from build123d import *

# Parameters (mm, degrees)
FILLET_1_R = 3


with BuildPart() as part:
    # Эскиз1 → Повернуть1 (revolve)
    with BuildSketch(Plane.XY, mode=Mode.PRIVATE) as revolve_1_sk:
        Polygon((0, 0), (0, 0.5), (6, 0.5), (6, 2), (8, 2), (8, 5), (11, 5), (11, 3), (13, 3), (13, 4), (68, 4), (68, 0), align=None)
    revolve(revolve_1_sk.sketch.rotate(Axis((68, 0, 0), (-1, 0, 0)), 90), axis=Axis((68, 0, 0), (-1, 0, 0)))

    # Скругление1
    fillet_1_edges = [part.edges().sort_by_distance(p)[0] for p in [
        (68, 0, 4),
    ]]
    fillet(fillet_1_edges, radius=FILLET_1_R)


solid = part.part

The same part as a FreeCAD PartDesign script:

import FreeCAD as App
import Part
import Sketcher

V = App.Vector
Q = App.Units.Quantity


def edges_at(feature, points):
    """Names of the edges that pass closest to the given points."""
    edges = feature.Shape.Edges
    near = lambda p: min(range(len(edges)), key=lambda i: edges[i].distToShape(Part.Vertex(*p))[0])
    return sorted({f"Edge{near(p) + 1}" for p in points})

doc = App.newDocument("Part")
body = doc.addObject("PartDesign::Body", "Body")

# Sketch on XY plane
sketch1 = body.newObject("Sketcher::SketchObject", "Sketch")
sketch1.AttachmentSupport = (doc.getObject("XY_Plane"), [""])
sketch1.MapMode = "FlatFace"
sketch1.addGeometry(Part.LineSegment(V(0, 0.5, 0), V(0, 0, 0)), False)
sketch1.addGeometry(Part.LineSegment(V(0, 0, 0), V(68, 0, 0)), False)
sketch1.addGeometry(Part.LineSegment(V(68, 0, 0), V(68, 4, 0)), False)
sketch1.addGeometry(Part.LineSegment(V(68, 4, 0), V(13, 4, 0)), False)
sketch1.addGeometry(Part.LineSegment(V(13, 4, 0), V(13, 3, 0)), False)
sketch1.addGeometry(Part.LineSegment(V(13, 3, 0), V(11, 3, 0)), False)
sketch1.addGeometry(Part.LineSegment(V(11, 3, 0), V(11, 5, 0)), False)
sketch1.addGeometry(Part.LineSegment(V(11, 5, 0), V(8, 5, 0)), False)
sketch1.addGeometry(Part.LineSegment(V(8, 5, 0), V(8, 2, 0)), False)
sketch1.addGeometry(Part.LineSegment(V(8, 2, 0), V(6, 2, 0)), False)
sketch1.addGeometry(Part.LineSegment(V(6, 2, 0), V(6, 0.5, 0)), False)
sketch1.addGeometry(Part.LineSegment(V(6, 0.5, 0), V(0, 0.5, 0)), False)
sketch1.addConstraint(Sketcher.Constraint("Coincident", 0, 2, 1, 1))
sketch1.addConstraint(Sketcher.Constraint("Coincident", 1, 2, 2, 1))
sketch1.addConstraint(Sketcher.Constraint("Coincident", 2, 2, 3, 1))
sketch1.addConstraint(Sketcher.Constraint("Coincident", 3, 2, 4, 1))
sketch1.addConstraint(Sketcher.Constraint("Coincident", 4, 2, 5, 1))
sketch1.addConstraint(Sketcher.Constraint("Coincident", 5, 2, 6, 1))
sketch1.addConstraint(Sketcher.Constraint("Coincident", 6, 2, 7, 1))
sketch1.addConstraint(Sketcher.Constraint("Coincident", 7, 2, 8, 1))
sketch1.addConstraint(Sketcher.Constraint("Coincident", 8, 2, 9, 1))
sketch1.addConstraint(Sketcher.Constraint("Coincident", 9, 2, 10, 1))
sketch1.addConstraint(Sketcher.Constraint("Coincident", 10, 2, 11, 1))
sketch1.addConstraint(Sketcher.Constraint("Coincident", 11, 2, 0, 1))
sketch1.addConstraint(Sketcher.Constraint("Vertical", 0))
sketch1.addConstraint(Sketcher.Constraint("Horizontal", 1))
sketch1.addConstraint(Sketcher.Constraint("Vertical", 2))
sketch1.addConstraint(Sketcher.Constraint("Horizontal", 3))
sketch1.addConstraint(Sketcher.Constraint("Vertical", 4))
sketch1.addConstraint(Sketcher.Constraint("Horizontal", 5))
sketch1.addConstraint(Sketcher.Constraint("Vertical", 6))
sketch1.addConstraint(Sketcher.Constraint("Horizontal", 7))
sketch1.addConstraint(Sketcher.Constraint("Vertical", 8))
sketch1.addConstraint(Sketcher.Constraint("Horizontal", 9))
sketch1.addConstraint(Sketcher.Constraint("Vertical", 10))
sketch1.addConstraint(Sketcher.Constraint("Horizontal", 11))
sketch1.addConstraint(Sketcher.Constraint("Coincident", 0, 2, -1, 1))
sketch1.addConstraint(Sketcher.Constraint("Equal", 5, 9))
sketch1.addConstraint(Sketcher.Constraint("Equal", 9, 6))
sketch1.addConstraint(Sketcher.Constraint("Equal", 7, 8))
sketch1.addConstraint(Sketcher.Constraint("DistanceX", 1, 1, 1, 2, Q("68 mm")))
sketch1.addConstraint(Sketcher.Constraint("DistanceX", 3, 2, 3, 1, Q("55 mm")))
sketch1.addConstraint(Sketcher.Constraint("DistanceX", 5, 2, 5, 1, Q("2 mm")))
sketch1.addConstraint(Sketcher.Constraint("DistanceX", 7, 2, 7, 1, Q("3 mm")))
sketch1.addConstraint(Sketcher.Constraint("DistanceY", 2, 1, 2, 2, Q("4 mm")))
sketch1.addConstraint(Sketcher.Constraint("DistanceY", 4, 2, 4, 1, Q("1 mm")))
sketch1.addConstraint(Sketcher.Constraint("DistanceY", 0, 2, 0, 1, Q("0.5 mm")))
revolution = body.newObject("PartDesign::Revolution", "Revolution")
revolution.Profile = sketch1
revolution.ReferenceAxis = (sketch1, ["H_Axis"])
revolution.Angle = 360
doc.recompute()

fillet = body.newObject("PartDesign::Fillet", "Fillet")
fillet.Base = (revolution, edges_at(revolution, [(68, 0, 4)]))
fillet.Radius = 3

doc.recompute()
